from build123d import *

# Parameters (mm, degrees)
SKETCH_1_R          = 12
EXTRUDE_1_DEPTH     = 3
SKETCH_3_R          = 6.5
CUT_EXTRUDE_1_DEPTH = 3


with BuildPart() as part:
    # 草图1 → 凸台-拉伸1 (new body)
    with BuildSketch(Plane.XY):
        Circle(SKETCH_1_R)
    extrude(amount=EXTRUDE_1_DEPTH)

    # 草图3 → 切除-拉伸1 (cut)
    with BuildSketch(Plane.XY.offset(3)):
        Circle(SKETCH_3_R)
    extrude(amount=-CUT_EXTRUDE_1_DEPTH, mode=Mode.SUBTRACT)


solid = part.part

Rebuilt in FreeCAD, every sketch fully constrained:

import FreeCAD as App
import Part
import Sketcher
from FreeCAD import Vector

doc = App.newDocument("Part")
body = doc.addObject("PartDesign::Body", "Body")

# Sketch on XY plane
sketch1 = doc.addObject("Sketcher::SketchObject", "Sketch")
body.addObject(sketch1)
sketch1.AttachmentSupport = (doc.XY_Plane, [""])
sketch1.MapMode = "FlatFace"
sketch1.addGeometry(Part.Circle(Vector(0, 0, 0), Vector(0, 0, 1), 12), False)
sketch1.addConstraint([
    Sketcher.Constraint("Coincident", 0, 3, -1, 1),
    Sketcher.Constraint("Diameter", 0, 24.0),
])
pad1 = doc.addObject("PartDesign::Pad", "Pad")
body.addObject(pad1)
pad1.Profile = sketch1
pad1.Length = 3

# Sketch on XY plane
sketch2 = doc.addObject("Sketcher::SketchObject", "Sketch001")
body.addObject(sketch2)
sketch2.AttachmentSupport = (doc.XY_Plane, [""])
sketch2.MapMode = "FlatFace"
sketch2.AttachmentOffset = App.Placement(Vector(0, 0, 3), App.Rotation())
sketch2.addGeometry(Part.Circle(Vector(0, 0, 0), Vector(0, 0, 1), 6), False)
sketch2.addConstraint([
    Sketcher.Constraint("Coincident", 0, 3, -1, 1),
    Sketcher.Constraint("Diameter", 0, 13.0),
])
pocket1 = doc.addObject("PartDesign::Pocket", "Pocket")
body.addObject(pocket1)
pocket1.Profile = sketch2
pocket1.Length = 3

doc.recompute()
